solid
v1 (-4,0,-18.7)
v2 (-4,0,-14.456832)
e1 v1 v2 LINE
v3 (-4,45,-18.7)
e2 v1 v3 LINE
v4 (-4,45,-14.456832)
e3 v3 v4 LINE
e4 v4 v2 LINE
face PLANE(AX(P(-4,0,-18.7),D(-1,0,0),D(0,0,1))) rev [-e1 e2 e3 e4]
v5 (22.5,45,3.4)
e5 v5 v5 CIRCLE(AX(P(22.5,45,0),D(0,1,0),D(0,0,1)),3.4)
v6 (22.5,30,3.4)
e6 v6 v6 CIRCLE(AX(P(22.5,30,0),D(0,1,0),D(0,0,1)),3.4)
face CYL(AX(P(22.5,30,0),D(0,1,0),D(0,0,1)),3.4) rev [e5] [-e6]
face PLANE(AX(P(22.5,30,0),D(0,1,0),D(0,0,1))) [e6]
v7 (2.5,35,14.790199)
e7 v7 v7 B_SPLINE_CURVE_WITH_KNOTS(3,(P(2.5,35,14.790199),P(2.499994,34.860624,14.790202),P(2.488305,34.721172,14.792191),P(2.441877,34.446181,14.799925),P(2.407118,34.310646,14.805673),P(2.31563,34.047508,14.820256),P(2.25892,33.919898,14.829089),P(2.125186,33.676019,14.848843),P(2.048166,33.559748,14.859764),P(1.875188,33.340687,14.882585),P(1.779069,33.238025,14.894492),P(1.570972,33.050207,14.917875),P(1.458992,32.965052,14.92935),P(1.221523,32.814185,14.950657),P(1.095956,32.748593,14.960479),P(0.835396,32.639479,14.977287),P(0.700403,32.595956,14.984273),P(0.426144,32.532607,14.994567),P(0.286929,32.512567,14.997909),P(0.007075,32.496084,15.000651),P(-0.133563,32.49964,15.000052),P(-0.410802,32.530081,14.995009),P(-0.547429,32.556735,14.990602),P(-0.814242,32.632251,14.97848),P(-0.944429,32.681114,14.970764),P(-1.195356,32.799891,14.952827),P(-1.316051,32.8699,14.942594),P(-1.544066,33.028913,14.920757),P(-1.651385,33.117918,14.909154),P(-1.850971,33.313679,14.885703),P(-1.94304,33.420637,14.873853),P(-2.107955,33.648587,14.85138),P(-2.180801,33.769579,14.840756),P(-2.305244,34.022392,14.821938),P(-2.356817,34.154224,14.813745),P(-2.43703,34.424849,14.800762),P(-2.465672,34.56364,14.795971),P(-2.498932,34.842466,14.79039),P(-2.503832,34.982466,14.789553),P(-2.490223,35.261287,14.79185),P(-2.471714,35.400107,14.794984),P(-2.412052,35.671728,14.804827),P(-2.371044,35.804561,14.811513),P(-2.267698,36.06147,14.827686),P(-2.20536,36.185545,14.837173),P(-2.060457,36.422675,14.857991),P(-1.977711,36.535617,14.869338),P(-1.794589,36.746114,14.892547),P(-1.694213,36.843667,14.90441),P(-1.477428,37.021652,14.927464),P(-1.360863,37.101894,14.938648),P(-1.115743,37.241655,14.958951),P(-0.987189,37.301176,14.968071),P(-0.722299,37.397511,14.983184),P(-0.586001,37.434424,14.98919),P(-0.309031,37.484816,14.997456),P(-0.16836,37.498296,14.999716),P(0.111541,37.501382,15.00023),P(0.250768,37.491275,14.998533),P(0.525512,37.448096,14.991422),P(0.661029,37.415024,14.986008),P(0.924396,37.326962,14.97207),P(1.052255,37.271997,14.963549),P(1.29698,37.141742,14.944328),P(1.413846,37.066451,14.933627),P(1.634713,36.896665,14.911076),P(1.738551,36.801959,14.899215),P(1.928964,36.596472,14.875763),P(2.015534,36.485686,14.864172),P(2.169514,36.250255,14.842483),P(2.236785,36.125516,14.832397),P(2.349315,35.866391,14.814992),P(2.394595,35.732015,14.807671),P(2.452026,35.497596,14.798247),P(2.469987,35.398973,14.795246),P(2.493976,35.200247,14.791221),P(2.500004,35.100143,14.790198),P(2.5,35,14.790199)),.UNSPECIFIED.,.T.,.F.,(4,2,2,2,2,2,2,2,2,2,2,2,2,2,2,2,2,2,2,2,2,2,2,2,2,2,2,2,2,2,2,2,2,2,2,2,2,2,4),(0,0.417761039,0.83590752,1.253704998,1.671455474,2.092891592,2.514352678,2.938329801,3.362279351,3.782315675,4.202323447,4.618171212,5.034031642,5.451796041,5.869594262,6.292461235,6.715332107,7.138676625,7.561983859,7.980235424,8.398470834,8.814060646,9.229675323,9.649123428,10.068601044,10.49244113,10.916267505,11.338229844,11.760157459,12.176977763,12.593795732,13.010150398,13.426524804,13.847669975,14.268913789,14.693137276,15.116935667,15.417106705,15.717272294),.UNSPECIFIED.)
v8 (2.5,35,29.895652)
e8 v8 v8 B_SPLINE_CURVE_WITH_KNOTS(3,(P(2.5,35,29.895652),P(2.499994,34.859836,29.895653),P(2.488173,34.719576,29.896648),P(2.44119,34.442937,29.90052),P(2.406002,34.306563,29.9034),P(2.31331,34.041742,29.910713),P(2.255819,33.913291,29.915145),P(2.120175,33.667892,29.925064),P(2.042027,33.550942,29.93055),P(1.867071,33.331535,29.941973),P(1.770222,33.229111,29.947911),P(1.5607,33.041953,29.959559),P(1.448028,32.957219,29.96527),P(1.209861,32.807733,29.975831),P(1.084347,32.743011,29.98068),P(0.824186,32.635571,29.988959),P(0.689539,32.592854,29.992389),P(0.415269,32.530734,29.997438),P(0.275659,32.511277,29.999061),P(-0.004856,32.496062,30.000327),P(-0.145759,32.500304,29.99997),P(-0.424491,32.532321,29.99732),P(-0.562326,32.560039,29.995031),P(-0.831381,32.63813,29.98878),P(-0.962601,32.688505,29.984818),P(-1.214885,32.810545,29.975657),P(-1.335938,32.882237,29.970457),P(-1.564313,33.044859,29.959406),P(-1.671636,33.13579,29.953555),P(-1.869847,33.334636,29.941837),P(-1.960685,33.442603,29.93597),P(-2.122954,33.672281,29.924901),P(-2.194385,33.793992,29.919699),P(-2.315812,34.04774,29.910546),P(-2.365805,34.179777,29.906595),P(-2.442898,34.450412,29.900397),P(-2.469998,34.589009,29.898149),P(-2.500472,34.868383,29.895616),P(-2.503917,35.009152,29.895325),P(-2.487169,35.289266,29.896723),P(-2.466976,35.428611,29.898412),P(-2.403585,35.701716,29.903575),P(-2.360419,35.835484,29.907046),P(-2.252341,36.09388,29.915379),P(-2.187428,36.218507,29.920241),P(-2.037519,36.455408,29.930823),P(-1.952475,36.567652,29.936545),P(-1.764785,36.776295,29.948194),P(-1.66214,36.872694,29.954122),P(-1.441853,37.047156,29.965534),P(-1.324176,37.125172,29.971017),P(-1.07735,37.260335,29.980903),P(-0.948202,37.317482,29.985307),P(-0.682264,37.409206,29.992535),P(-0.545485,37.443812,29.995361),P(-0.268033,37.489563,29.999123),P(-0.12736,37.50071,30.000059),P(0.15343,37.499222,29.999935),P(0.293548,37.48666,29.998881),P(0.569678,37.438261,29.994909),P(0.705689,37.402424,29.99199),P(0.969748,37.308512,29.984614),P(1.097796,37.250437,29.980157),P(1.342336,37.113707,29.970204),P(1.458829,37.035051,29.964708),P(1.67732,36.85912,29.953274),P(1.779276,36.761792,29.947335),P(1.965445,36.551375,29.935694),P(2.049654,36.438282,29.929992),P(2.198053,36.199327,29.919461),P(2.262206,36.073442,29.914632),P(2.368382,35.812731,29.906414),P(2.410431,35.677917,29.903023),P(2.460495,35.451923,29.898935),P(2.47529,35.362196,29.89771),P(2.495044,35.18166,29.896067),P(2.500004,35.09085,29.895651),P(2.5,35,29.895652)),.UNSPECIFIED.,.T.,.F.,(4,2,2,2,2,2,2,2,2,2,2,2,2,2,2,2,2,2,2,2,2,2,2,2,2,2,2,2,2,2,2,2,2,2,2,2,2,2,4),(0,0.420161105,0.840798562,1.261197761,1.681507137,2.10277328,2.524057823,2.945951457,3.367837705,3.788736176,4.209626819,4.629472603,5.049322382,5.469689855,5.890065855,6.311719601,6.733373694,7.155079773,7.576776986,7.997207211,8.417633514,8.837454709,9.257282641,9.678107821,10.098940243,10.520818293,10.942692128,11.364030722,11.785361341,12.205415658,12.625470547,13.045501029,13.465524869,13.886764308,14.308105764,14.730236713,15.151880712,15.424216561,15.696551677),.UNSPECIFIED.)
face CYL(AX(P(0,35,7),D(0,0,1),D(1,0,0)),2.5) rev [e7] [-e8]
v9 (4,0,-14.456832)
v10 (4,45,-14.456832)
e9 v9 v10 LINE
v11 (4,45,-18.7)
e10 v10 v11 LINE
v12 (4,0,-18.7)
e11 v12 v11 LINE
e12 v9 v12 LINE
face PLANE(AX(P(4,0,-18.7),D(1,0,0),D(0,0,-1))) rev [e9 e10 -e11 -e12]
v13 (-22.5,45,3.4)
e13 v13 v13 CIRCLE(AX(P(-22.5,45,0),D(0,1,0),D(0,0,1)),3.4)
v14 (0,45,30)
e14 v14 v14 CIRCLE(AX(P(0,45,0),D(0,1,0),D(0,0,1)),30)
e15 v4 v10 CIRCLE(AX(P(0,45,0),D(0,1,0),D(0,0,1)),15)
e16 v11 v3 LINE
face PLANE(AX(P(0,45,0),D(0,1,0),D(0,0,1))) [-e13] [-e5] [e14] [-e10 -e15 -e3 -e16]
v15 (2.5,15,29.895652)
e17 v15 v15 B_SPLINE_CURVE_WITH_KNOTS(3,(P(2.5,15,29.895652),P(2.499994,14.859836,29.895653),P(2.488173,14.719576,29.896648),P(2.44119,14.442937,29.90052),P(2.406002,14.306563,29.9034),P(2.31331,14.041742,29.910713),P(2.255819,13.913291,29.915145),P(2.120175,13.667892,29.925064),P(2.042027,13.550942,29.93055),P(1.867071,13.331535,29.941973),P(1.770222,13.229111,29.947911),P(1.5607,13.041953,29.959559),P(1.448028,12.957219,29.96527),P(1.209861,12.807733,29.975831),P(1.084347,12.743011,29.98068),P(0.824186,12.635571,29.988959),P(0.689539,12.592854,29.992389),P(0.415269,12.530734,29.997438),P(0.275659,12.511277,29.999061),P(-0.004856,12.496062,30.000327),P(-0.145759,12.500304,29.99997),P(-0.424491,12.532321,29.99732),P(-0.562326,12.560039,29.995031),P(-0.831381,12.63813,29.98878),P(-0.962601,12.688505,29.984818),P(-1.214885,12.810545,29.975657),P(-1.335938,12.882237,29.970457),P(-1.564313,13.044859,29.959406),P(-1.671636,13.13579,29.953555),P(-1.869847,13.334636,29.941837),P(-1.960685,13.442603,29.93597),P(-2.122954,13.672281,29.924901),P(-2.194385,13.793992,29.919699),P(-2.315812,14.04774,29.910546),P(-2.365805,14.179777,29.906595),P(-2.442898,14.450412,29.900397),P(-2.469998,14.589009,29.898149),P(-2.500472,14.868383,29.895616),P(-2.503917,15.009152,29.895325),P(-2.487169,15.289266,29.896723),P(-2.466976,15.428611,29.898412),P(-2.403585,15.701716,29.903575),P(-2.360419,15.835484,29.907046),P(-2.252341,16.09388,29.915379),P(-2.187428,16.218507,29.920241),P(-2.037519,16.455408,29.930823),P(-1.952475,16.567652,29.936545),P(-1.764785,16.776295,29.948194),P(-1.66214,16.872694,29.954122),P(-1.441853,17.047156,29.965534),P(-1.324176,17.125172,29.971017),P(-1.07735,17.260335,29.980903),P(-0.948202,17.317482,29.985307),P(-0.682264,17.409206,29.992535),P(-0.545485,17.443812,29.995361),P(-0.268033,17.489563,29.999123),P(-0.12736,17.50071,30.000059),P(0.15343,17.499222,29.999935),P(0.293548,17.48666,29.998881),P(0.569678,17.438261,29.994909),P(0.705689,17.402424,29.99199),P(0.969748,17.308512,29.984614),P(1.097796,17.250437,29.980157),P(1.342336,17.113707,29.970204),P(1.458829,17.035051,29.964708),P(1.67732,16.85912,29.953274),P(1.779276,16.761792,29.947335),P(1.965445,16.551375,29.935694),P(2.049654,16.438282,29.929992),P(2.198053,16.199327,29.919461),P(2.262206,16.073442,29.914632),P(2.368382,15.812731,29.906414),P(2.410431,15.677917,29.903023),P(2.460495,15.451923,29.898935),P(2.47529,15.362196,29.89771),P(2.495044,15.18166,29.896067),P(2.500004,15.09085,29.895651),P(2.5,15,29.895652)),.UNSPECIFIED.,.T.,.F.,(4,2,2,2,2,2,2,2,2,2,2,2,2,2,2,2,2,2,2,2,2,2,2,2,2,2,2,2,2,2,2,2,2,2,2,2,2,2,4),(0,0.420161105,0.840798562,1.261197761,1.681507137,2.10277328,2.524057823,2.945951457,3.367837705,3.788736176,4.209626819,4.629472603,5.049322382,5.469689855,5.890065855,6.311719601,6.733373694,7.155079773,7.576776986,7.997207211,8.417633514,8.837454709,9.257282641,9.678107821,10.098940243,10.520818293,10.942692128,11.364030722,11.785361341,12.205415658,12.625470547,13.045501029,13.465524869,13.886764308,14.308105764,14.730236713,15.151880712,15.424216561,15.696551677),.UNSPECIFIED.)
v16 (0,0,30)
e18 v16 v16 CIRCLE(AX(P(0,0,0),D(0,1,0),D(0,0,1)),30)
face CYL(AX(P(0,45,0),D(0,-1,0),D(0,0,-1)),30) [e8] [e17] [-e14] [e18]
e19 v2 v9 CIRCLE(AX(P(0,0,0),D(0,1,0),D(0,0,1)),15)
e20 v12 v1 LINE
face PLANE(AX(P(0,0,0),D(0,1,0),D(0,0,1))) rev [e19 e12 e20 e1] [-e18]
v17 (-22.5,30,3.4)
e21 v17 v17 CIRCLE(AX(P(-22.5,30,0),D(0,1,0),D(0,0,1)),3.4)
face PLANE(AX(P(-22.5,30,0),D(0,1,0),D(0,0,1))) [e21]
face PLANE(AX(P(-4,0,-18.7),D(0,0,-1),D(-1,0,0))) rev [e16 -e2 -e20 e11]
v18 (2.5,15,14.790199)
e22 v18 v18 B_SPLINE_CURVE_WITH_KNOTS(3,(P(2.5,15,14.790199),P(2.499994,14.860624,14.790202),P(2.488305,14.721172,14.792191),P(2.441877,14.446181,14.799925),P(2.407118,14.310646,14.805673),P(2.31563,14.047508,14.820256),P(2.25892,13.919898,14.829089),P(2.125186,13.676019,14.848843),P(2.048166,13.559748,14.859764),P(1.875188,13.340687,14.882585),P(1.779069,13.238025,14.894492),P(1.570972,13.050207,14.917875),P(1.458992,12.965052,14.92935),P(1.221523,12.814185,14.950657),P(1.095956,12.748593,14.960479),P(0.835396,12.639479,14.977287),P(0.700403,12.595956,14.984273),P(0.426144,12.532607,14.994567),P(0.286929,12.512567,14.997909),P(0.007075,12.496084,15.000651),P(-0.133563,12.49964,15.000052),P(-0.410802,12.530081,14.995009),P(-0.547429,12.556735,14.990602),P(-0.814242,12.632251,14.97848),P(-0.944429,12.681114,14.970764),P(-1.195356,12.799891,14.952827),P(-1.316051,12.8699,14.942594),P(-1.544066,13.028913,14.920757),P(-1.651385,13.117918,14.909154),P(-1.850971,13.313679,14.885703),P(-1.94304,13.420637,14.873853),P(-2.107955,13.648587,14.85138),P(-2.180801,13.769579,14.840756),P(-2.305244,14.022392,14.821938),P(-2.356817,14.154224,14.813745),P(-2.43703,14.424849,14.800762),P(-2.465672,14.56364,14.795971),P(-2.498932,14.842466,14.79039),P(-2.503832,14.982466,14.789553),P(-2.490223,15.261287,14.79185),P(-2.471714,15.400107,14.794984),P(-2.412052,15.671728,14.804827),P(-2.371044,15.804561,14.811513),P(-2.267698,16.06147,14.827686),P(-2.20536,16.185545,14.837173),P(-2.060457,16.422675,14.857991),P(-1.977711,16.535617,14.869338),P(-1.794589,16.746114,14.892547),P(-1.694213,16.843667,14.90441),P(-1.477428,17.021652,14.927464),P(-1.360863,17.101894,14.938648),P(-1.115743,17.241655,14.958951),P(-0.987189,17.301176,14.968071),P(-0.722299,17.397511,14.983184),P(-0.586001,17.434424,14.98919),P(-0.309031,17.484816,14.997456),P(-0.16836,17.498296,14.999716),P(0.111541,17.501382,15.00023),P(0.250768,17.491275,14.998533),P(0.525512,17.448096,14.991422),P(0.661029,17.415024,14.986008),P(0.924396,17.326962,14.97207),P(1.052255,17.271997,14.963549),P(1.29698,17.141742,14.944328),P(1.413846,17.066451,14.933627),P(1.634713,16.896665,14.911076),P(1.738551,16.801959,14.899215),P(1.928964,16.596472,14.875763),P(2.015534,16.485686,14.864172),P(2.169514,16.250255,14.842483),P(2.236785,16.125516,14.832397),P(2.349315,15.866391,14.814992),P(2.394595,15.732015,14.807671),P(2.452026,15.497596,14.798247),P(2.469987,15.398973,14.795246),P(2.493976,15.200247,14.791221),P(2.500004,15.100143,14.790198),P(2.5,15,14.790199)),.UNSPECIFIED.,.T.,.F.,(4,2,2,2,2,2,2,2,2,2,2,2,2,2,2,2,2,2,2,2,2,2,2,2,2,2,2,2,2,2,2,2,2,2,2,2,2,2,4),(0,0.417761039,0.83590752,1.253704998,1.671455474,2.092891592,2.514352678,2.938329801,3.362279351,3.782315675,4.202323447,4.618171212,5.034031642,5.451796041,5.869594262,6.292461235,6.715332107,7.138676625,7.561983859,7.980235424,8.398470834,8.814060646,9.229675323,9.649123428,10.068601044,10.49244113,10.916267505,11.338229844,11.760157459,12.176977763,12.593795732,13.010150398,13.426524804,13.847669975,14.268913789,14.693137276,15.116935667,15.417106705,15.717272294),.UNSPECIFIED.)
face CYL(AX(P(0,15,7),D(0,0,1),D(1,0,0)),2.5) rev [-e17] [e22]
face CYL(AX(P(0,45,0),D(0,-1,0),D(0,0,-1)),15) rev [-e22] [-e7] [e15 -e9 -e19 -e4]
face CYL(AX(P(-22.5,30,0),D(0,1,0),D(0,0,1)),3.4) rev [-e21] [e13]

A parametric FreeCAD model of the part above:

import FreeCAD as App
import Part
import Sketcher

V = App.Vector


def add_polygon(sketch, points):
    """Adds a closed chain of lines whose ends are joined by coincident constraints."""
    first, n = sketch.GeometryCount, len(points)
    for a, b in zip(points, points[1:] + points[:1]):
        sketch.addGeometry(Part.LineSegment(App.Vector(*a, 0), App.Vector(*b, 0)), False)
    for i in range(n):
        sketch.addConstraint(Sketcher.Constraint("Coincident", first + i, 2, first + (i + 1) % n, 1))

doc = App.newDocument("Part")
params = doc.addObject("Spreadsheet::Sheet", "Params")
for row, (alias, value) in enumerate([
    ("sketch1_diameter", "60 mm"),
    ("sketch1_diameter2", "30 mm"),
    ("pad1_length", "45 mm"),
    ("sketch2_diameter", "6.8 mm"),
    ("pocket1_length", "15 mm"),
    ("sketch3_diameter", "5 mm"),
    ("pocket2_length", "23 mm"),
    ("sketch4_width", "8 mm"),
    ("sketch4_height", "6 mm"),
], start=1):
    params.set(f"A{row}", alias)
    params.set(f"B{row}", "=" + value)
    params.setAlias(f"B{row}", alias)

body = doc.addObject("PartDesign::Body", "Body")

# Sketch on XZ plane
sketch1 = body.newObject("Sketcher::SketchObject", "Sketch")
sketch1.AttachmentSupport = (doc.getObject("XZ_Plane"), [""])
sketch1.MapMode = "FlatFace"
sketch1.addGeometry(Part.Circle(V(0, 0, 0), V(0, 0, 1), 30), False)
sketch1.addGeometry(Part.Circle(V(0, 0, 0), V(0, 0, 1), 15), False)
sketch1.addConstraint(Sketcher.Constraint("Coincident", 0, 3, -1, 1))
sketch1.addConstraint(Sketcher.Constraint("Coincident", 1, 3, -1, 1))
sketch1.addConstraint(Sketcher.Constraint("Diameter", 0, 60.0))
sketch1.addConstraint(Sketcher.Constraint("Diameter", 1, 30.0))
sketch1.setExpression("Constraints[2]", "Params.sketch1_diameter")
sketch1.setExpression("Constraints[3]", "Params.sketch1_diameter2")
pad1 = body.newObject("PartDesign::Pad", "Pad")
pad1.Profile = sketch1
pad1.setExpression("Length", "Params.pad1_length")
pad1.Reversed = True

# Sketch on XZ plane
sketch2 = body.newObject("Sketcher::SketchObject", "Sketch001")
sketch2.AttachmentSupport = (doc.getObject("XZ_Plane"), [""])
sketch2.MapMode = "FlatFace"
sketch2.AttachmentOffset = App.Placement(V(0, 0, -45), App.Rotation())
sketch2.addGeometry(Part.Circle(V(22.5, 0, 0), V(0, 0, 1), 3.4), False)
sketch2.addGeometry(Part.Circle(V(-22.5, 0, 0), V(0, 0, 1), 3.4), False)
sketch2.addConstraint(Sketcher.Constraint("Equal", 0, 1))
sketch2.addConstraint(Sketcher.Constraint("Symmetric", 0, 3, 1, 3, -1, 1))
sketch2.addConstraint(Sketcher.Constraint("PointOnObject", 0, 3, -1))
sketch2.addConstraint(Sketcher.Constraint("Diameter", 0, 6.8))
sketch2.addConstraint(Sketcher.Constraint("DistanceX", 1, 3, 0, 3, 45.0))
sketch2.setExpression("Constraints[3]", "Params.sketch2_diameter")
pocket1 = body.newObject("PartDesign::Pocket", "Pocket")
pocket1.Profile = sketch2
pocket1.setExpression("Length", "Params.pocket1_length")
pocket1.Reversed = True

# Sketch on XY plane
sketch3 = body.newObject("Sketcher::SketchObject", "Sketch002")
sketch3.AttachmentSupport = (doc.getObject("XY_Plane"), [""])
sketch3.MapMode = "FlatFace"
sketch3.AttachmentOffset = App.Placement(V(0, 0, 30), App.Rotation())
sketch3.addGeometry(Part.Circle(V(0, 35, 0), V(0, 0, 1), 2.5), False)
sketch3.addGeometry(Part.Circle(V(0, 15, 0), V(0, 0, 1), 2.5), False)
sketch3.addConstraint(Sketcher.Constraint("Equal", 0, 1))
sketch3.addConstraint(Sketcher.Constraint("PointOnObject", 0, 3, -2))
sketch3.addConstraint(Sketcher.Constraint("PointOnObject", 1, 3, -2))
sketch3.addConstraint(Sketcher.Constraint("Diameter", 0, 5.0))
sketch3.addConstraint(Sketcher.Constraint("DistanceY", -1, 1, 0, 3, 35.0))
sketch3.addConstraint(Sketcher.Constraint("DistanceY", -1, 1, 1, 3, 15.0))
sketch3.setExpression("Constraints[3]", "Params.sketch3_diameter")
pocket2 = body.newObject("PartDesign::Pocket", "Pocket001")
pocket2.Profile = sketch3
pocket2.setExpression("Length", "Params.pocket2_length")

# Sketch on XZ plane
sketch4 = body.newObject("Sketcher::SketchObject", "Sketch003")
sketch4.AttachmentSupport = (doc.getObject("XZ_Plane"), [""])
sketch4.MapMode = "FlatFace"
sketch4.AttachmentOffset = App.Placement(V(0, 0, -45), App.Rotation())
add_polygon(sketch4, [(-4, -18.7), (-4, -12.7), (4, -12.7), (4, -18.7)])  # lines 0-3
sketch4.addConstraint(Sketcher.Constraint("Vertical", 0))
sketch4.addConstraint(Sketcher.Constraint("Horizontal", 1))
sketch4.addConstraint(Sketcher.Constraint("Vertical", 2))
sketch4.addConstraint(Sketcher.Constraint("Horizontal", 3))
sketch4.addConstraint(Sketcher.Constraint("DistanceX", 1, 1, 1, 2, 8.0))
sketch4.addConstraint(Sketcher.Constraint("DistanceY", 0, 1, 0, 2, 6.0))
sketch4.addConstraint(Sketcher.Constraint("DistanceX", 0, 2, -1, 1, 4.0))
sketch4.addConstraint(Sketcher.Constraint("DistanceY", 0, 2, -1, 1, 12.7))
sketch4.setExpression("Constraints[8]", "Params.sketch4_width")
sketch4.setExpression("Constraints[9]", "Params.sketch4_height")
pocket3 = body.newObject("PartDesign::Pocket", "Pocket002")
pocket3.Profile = sketch4
pocket3.Type = "ThroughAll"
pocket3.Reversed = True

doc.recompute()
